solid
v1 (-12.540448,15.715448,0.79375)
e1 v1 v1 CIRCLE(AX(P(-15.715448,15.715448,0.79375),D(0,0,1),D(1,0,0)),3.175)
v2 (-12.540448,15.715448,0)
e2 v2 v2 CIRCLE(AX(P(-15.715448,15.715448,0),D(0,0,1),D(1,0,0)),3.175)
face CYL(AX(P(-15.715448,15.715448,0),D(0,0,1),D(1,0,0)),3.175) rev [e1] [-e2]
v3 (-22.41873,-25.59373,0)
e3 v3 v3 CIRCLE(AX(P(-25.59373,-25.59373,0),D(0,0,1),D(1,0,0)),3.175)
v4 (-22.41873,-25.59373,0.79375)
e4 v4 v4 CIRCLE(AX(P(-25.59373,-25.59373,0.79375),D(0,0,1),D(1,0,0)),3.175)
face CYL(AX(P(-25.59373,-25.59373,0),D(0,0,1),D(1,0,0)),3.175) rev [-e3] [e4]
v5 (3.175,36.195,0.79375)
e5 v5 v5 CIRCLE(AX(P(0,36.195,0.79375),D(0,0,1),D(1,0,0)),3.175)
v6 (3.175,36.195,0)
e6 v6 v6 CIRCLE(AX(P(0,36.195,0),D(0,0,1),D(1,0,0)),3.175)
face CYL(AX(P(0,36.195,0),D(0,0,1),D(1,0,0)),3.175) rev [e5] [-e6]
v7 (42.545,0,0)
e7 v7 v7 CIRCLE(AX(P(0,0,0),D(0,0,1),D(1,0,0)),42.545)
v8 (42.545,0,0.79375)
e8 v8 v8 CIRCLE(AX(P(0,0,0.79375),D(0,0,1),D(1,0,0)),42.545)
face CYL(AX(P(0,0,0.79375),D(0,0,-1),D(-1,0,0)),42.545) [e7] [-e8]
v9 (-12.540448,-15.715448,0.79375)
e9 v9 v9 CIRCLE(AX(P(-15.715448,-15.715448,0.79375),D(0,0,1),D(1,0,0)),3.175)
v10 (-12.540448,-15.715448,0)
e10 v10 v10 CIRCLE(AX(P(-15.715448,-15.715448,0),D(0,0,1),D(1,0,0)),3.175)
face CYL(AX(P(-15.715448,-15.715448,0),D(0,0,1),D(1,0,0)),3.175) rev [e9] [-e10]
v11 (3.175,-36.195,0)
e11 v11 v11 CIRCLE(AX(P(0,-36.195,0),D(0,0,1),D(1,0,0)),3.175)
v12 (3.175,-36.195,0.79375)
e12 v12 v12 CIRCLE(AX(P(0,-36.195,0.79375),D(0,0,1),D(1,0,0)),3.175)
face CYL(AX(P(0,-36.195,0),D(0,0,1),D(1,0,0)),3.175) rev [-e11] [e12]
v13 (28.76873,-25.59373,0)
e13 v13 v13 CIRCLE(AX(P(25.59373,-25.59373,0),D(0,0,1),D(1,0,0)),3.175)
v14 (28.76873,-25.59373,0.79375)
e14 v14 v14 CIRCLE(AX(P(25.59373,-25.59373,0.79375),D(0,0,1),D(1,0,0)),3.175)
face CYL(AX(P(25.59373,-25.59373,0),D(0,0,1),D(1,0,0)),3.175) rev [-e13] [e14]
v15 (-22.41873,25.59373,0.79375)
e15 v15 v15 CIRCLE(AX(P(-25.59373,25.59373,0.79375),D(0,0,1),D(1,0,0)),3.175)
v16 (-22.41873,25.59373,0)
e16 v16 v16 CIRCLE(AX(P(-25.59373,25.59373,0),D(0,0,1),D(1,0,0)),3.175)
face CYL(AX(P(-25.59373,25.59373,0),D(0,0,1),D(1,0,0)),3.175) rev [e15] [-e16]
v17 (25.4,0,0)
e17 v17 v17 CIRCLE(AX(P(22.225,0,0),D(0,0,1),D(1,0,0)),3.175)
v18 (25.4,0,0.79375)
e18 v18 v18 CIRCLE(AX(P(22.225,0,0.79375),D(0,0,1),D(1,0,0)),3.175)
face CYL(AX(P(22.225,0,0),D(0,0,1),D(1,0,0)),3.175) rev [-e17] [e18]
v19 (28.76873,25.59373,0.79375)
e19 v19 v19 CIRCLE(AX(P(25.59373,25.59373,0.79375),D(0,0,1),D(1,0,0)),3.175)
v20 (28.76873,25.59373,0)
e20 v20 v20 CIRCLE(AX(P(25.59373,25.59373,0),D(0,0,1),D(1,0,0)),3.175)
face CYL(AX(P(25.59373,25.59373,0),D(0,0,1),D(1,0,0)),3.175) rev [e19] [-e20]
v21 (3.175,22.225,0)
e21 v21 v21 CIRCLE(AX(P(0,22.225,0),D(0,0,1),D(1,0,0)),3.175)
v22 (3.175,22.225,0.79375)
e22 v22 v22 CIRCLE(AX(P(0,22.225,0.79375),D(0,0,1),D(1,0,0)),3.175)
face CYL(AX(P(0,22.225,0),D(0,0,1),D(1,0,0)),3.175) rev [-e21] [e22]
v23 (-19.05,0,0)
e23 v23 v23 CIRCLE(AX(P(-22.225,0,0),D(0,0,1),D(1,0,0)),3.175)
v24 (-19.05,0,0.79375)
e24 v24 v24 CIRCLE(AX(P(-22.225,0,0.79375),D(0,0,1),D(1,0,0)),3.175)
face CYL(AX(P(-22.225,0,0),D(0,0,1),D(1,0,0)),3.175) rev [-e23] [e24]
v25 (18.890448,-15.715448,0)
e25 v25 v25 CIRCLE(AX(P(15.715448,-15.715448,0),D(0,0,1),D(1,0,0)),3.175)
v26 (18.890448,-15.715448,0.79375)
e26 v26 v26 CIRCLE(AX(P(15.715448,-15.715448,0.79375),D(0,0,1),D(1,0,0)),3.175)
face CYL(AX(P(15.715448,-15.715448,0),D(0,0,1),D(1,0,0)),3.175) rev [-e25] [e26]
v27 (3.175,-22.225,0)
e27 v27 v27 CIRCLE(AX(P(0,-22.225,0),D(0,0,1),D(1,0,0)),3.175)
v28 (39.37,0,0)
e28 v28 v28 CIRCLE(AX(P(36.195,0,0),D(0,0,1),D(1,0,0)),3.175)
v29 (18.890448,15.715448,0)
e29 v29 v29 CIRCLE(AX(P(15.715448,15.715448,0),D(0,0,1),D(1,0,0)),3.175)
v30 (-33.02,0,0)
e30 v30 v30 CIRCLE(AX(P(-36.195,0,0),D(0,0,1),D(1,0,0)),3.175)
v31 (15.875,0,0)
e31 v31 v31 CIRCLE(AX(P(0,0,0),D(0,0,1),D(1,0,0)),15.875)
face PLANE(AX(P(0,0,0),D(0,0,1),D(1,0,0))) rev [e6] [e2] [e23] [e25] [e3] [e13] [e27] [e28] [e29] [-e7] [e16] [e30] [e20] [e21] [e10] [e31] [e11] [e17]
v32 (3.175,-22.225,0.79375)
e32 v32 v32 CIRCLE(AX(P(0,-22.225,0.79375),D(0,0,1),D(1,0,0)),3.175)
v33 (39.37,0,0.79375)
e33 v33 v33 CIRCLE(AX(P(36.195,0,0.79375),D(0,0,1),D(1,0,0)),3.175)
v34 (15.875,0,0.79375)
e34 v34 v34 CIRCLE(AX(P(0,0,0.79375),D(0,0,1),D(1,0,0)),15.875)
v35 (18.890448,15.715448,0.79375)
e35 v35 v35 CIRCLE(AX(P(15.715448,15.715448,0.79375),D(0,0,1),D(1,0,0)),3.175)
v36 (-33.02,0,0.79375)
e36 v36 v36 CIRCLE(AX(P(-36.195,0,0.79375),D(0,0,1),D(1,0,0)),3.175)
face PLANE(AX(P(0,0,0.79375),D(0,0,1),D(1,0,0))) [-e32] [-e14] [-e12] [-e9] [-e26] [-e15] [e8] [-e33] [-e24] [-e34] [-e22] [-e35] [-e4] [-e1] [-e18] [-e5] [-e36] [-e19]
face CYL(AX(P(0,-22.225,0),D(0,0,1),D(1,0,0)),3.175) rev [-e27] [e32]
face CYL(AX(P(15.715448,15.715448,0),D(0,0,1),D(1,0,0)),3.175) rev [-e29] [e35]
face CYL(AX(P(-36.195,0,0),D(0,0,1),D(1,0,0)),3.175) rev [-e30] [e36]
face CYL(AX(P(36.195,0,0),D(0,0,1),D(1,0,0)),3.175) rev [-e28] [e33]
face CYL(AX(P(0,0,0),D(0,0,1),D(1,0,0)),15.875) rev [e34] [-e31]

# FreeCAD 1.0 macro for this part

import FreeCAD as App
import Part
import Sketcher
Q = App.Units.Quantity

doc = App.newDocument("Part")
body = doc.addObject("PartDesign::Body", "Body")

# Sketch on XY plane
sketch1 = body.newObject("Sketcher::SketchObject", "Sketch")
sketch1.AttachmentSupport = (doc.getObject("XY_Plane"), [""])
sketch1.MapMode = "FlatFace"
sketch1.addGeometry(Part.Circle(App.Vector(0, 0, 0), App.Vector(0, 0, 1), 43), False)
sketch1.addConstraint([
    Sketcher.Constraint("Coincident", 0, 3, -1, 1),
    Sketcher.Constraint("Diameter", 0, Q("3.35 in")),
])
pad1 = body.newObject("PartDesign::Pad", "Pad")
pad1.Profile = sketch1
pad1.Length = Q("0.03125 in")

# Sketch on XY plane
sketch2 = body.newObject("Sketcher::SketchObject", "Sketch001")
sketch2.AttachmentSupport = (doc.getObject("XY_Plane"), [""])
sketch2.MapMode = "FlatFace"
sketch2.AttachmentOffset = App.Placement(App.Vector(0, 0, 0.03125 * 25.4), App.Rotation())
sketch2.addGeometry(Part.Circle(App.Vector(0, 0, 0), App.Vector(0, 0, 1), 16), False)
sketch2.addConstraint([
    Sketcher.Constraint("Coincident", 0, 3, -1, 1),
    Sketcher.Constraint("Diameter", 0, Q("1.25 in")),
])
pocket1 = body.newObject("PartDesign::Pocket", "Pocket")
pocket1.Profile = sketch2
pocket1.Type = "ThroughAll"

# Sketch on XY plane
sketch3 = body.newObject("Sketcher::SketchObject", "Sketch002")
sketch3.AttachmentSupport = (doc.getObject("XY_Plane"), [""])
sketch3.MapMode = "FlatFace"
sketch3.AttachmentOffset = App.Placement(App.Vector(0, 0, 0.03125 * 25.4), App.Rotation())
sketch3.addGeometry([
    Part.Circle(App.Vector(22.2, 0, 0), App.Vector(0, 0, 1), 3.2),  # 0
    Part.Circle(App.Vector(36.2, 0, 0), App.Vector(0, 0, 1), 3.2),  # 1
    Part.Circle(App.Vector(15.7, -15.7, 0), App.Vector(0, 0, 1), 3.2),  # 2
    Part.Circle(App.Vector(25.6, -25.6, 0), App.Vector(0, 0, 1), 3.2),  # 3
    Part.Circle(App.Vector(0, -22.2, 0), App.Vector(0, 0, 1), 3.2),  # 4
    Part.Circle(App.Vector(0, -36.2, 0), App.Vector(0, 0, 1), 3.2),  # 5
    Part.Circle(App.Vector(-15.7, -15.7, 0), App.Vector(0, 0, 1), 3.2),  # 6
    Part.Circle(App.Vector(-25.6, -25.6, 0), App.Vector(0, 0, 1), 3.2),  # 7
    Part.Circle(App.Vector(-22.2, 0, 0), App.Vector(0, 0, 1), 3.2),  # 8
    Part.Circle(App.Vector(-36.2, 0, 0), App.Vector(0, 0, 1), 3.2),  # 9
    Part.Circle(App.Vector(-15.7, 15.7, 0), App.Vector(0, 0, 1), 3.2),  # 10
    Part.Circle(App.Vector(-25.6, 25.6, 0), App.Vector(0, 0, 1), 3.2),  # 11
    Part.Circle(App.Vector(0, 22.2, 0), App.Vector(0, 0, 1), 3.2),  # 12
    Part.Circle(App.Vector(0, 36.2, 0), App.Vector(0, 0, 1), 3.2),  # 13
    Part.Circle(App.Vector(15.7, 15.7, 0), App.Vector(0, 0, 1), 3.2),  # 14
    Part.Circle(App.Vector(25.6, 25.6, 0), App.Vector(0, 0, 1), 3.2),  # 15
], False)
sketch3.addConstraint([
    Sketcher.Constraint("Equal", 0, 1),
    Sketcher.Constraint("Equal", 1, 2),
    Sketcher.Constraint("Equal", 2, 3),
    Sketcher.Constraint("Equal", 3, 4),
    Sketcher.Constraint("Equal", 4, 5),
    Sketcher.Constraint("Equal", 5, 6),
    Sketcher.Constraint("Equal", 6, 7),
    Sketcher.Constraint("Equal", 7, 8),
    Sketcher.Constraint("Equal", 8, 9),
    Sketcher.Constraint("Equal", 9, 10),
    Sketcher.Constraint("Equal", 10, 11),
    Sketcher.Constraint("Equal", 11, 12),
    Sketcher.Constraint("Equal", 12, 13),
    Sketcher.Constraint("Equal", 13, 14),
    Sketcher.Constraint("Equal", 14, 15),
    Sketcher.Constraint("Symmetric", 0, 3, 8, 3, -1, 1),
    Sketcher.Constraint("Symmetric", 1, 3, 9, 3, -1, 1),
    Sketcher.Constraint("Symmetric", 2, 3, 10, 3, -1, 1),
    Sketcher.Constraint("Symmetric", 3, 3, 11, 3, -1, 1),
    Sketcher.Constraint("Symmetric", 4, 3, 12, 3, -1, 1),
    Sketcher.Constraint("Symmetric", 5, 3, 13, 3, -1, 1),
    Sketcher.Constraint("Symmetric", 6, 3, 14, 3, -1, 1),
    Sketcher.Constraint("Symmetric", 7, 3, 15, 3, -1, 1),
    Sketcher.Constraint("Symmetric", 2, 3, 6, 3, -2),
    Sketcher.Constraint("Symmetric", 3, 3, 7, 3, -2),
    Sketcher.Constraint("PointOnObject", 0, 3, -1),
    Sketcher.Constraint("PointOnObject", 1, 3, -1),
    Sketcher.Constraint("PointOnObject", 4, 3, -2),
    Sketcher.Constraint("PointOnObject", 5, 3, -2),
    Sketcher.Constraint("Diameter", 0, Q("0.25 in")),
    Sketcher.Constraint("DistanceX", 0, 3, 1, 3, Q("0.55 in")),
    Sketcher.Constraint("DistanceY", 5, 3, 4, 3, Q("0.55 in")),
    Sketcher.Constraint("DistanceX", -1, 1, 0, 3, Q("0.875 in")),
    Sketcher.Constraint("DistanceY", 4, 3, -1, 1, Q("0.875 in")),
    Sketcher.Constraint("DistanceX", -1, 1, 2, 3, 15.715448),
    Sketcher.Constraint("DistanceY", 2, 3, -1, 1, 15.715448),
    Sketcher.Constraint("DistanceX", -1, 1, 3, 3, 25.59373),
    Sketcher.Constraint("DistanceY", 3, 3, -1, 1, 25.59373),
])
pocket2 = body.newObject("PartDesign::Pocket", "Pocket001")
pocket2.Profile = sketch3
pocket2.Type = "ThroughAll"

doc.recompute()
